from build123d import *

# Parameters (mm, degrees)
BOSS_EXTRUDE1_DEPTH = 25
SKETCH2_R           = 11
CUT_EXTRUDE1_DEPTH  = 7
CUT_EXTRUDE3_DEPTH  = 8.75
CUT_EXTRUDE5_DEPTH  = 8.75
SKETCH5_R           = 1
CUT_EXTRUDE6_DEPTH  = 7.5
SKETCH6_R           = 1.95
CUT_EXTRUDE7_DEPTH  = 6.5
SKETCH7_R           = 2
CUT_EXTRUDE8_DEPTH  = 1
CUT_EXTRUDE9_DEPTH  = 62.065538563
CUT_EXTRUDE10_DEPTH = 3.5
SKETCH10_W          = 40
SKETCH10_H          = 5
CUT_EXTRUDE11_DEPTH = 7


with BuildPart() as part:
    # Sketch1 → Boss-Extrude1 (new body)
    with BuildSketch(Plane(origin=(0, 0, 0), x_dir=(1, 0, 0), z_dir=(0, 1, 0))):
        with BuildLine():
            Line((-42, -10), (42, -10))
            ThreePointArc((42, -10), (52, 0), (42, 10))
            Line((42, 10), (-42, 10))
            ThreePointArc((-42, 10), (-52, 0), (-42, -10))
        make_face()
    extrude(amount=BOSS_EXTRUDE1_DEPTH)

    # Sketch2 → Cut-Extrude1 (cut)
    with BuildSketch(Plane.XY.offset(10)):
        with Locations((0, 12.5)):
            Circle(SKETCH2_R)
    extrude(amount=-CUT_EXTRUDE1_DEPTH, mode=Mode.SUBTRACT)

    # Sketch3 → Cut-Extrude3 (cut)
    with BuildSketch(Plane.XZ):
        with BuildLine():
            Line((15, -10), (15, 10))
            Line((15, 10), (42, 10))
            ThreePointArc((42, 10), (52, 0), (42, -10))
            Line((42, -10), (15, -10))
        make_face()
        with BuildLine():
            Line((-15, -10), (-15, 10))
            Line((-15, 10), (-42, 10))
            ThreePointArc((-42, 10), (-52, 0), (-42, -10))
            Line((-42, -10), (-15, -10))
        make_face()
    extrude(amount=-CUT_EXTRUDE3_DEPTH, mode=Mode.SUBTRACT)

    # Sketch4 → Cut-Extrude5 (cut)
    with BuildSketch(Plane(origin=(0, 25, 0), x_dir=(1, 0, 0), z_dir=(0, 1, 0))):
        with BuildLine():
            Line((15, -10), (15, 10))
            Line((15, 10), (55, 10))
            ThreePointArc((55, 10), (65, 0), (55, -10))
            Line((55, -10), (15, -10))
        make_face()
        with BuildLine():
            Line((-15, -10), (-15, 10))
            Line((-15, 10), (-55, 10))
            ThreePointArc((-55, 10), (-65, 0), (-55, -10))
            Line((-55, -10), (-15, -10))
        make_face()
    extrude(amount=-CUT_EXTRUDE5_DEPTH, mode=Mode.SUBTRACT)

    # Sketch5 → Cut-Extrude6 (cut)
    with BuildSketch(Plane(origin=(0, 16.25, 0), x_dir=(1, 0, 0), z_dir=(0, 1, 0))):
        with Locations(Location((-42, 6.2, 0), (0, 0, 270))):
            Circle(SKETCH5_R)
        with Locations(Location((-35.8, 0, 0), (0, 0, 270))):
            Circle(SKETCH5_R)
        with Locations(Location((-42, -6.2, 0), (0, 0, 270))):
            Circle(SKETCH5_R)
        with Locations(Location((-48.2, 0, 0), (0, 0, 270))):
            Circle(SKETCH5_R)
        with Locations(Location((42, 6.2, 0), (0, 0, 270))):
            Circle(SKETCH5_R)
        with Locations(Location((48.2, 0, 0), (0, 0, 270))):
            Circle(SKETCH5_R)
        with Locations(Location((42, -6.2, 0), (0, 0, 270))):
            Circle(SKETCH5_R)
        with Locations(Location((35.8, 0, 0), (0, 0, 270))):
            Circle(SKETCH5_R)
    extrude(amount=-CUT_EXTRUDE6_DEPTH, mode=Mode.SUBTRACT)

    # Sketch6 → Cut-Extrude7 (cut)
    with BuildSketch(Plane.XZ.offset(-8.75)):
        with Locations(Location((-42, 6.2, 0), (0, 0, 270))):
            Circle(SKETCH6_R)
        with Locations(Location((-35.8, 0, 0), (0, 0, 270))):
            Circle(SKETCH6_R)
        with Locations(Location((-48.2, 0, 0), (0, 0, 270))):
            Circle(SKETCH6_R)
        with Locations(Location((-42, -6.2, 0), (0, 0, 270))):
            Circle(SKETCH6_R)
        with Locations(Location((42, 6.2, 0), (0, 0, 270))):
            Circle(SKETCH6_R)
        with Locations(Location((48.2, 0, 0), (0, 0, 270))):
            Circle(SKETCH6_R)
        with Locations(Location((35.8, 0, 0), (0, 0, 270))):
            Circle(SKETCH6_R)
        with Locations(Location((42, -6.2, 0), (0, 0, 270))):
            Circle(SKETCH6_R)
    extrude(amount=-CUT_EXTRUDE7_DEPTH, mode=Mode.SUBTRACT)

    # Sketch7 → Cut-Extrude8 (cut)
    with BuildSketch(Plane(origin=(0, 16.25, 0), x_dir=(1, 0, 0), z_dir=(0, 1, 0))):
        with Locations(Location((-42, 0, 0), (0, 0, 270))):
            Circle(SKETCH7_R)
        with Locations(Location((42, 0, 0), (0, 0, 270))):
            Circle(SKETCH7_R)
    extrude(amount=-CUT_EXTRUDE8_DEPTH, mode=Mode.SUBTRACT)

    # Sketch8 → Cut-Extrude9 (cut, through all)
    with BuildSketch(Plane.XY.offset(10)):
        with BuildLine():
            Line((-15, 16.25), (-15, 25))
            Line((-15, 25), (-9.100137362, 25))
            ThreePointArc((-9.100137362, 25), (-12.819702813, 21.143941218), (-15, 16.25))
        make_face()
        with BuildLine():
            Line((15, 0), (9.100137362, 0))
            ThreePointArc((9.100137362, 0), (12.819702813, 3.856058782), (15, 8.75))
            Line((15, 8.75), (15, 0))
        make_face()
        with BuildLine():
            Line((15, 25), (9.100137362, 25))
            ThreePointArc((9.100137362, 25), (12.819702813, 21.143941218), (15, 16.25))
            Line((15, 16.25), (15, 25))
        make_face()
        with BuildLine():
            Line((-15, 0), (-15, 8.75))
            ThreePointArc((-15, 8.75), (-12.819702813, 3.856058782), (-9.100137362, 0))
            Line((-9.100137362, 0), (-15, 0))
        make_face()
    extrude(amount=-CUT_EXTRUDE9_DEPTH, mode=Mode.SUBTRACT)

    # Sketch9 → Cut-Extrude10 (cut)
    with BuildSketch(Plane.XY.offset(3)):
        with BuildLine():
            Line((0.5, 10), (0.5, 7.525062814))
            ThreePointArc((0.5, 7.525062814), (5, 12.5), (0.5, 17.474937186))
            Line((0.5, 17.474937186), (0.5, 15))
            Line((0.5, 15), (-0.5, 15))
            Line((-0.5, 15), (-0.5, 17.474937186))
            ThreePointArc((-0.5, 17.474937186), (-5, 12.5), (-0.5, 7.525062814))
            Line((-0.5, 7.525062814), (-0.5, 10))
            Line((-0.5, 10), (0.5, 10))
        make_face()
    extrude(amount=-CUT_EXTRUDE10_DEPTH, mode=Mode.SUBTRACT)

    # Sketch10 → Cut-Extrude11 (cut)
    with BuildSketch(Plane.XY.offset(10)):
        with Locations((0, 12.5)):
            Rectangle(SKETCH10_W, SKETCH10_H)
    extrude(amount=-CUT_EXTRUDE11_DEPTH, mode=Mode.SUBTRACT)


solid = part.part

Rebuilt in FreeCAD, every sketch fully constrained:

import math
import FreeCAD as App
import Part
import Sketcher
from FreeCAD import Vector
Q = App.Units.Quantity


def add_polygon(sketch, points):
    """Adds a closed chain of lines whose ends are joined by coincident constraints."""
    first, n = sketch.GeometryCount, len(points)
    for a, b in zip(points, points[1:] + points[:1]):
        sketch.addGeometry(Part.LineSegment(App.Vector(*a, 0), App.Vector(*b, 0)), False)
    for i in range(n):
        sketch.addConstraint(Sketcher.Constraint("Coincident", first + i, 2, first + (i + 1) % n, 1))

doc = App.newDocument("Part")
body = doc.addObject("PartDesign::Body", "Body")

# Sketch on XZ plane
sketch1 = body.newObject("Sketcher::SketchObject", "Sketch")
sketch1.AttachmentSupport = (doc.getObject("XZ_Plane"), [""])
sketch1.MapMode = "FlatFace"
sketch1.addGeometry(Part.LineSegment(Vector(-42, 10, 0), Vector(42, 10, 0)), False)
sketch1.addGeometry(Part.ArcOfCircle(Part.Circle(Vector(42, 0, 0), Vector(0, 0, 1), 10), math.radians(-90), math.radians(90)), False)
sketch1.addGeometry(Part.LineSegment(Vector(42, -10, 0), Vector(-42, -10, 0)), False)
sketch1.addGeometry(Part.ArcOfCircle(Part.Circle(Vector(-42, 0, 0), Vector(0, 0, 1), 10), math.radians(90), math.radians(270)), False)
sketch1.addConstraint(Sketcher.Constraint("Tangent", 0, 2, 1, 2))
sketch1.addConstraint(Sketcher.Constraint("Tangent", 1, 1, 2, 1))
sketch1.addConstraint(Sketcher.Constraint("Tangent", 2, 2, 3, 2))
sketch1.addConstraint(Sketcher.Constraint("Tangent", 3, 1, 0, 1))
sketch1.addConstraint(Sketcher.Constraint("Horizontal", 0))
sketch1.addConstraint(Sketcher.Constraint("Horizontal", 2))
sketch1.addConstraint(Sketcher.Constraint("Symmetric", 1, 3, 3, 3, -1, 1))
sketch1.addConstraint(Sketcher.Constraint("Radius", 1, Q("10 mm")))
sketch1.addConstraint(Sketcher.Constraint("DistanceX", 0, 1, 0, 2, Q("84 mm")))
pad1 = body.newObject("PartDesign::Pad", "Pad")
pad1.Profile = sketch1
pad1.Length = 25
pad1.Reversed = True

# Sketch on XY plane
sketch2 = body.newObject("Sketcher::SketchObject", "Sketch001")
sketch2.AttachmentSupport = (doc.getObject("XY_Plane"), [""])
sketch2.MapMode = "FlatFace"
sketch2.AttachmentOffset = App.Placement(Vector(0, 0, 10), App.Rotation())
sketch2.addGeometry(Part.Circle(Vector(0, 12, 0), Vector(0, 0, 1), 11), False)
sketch2.addConstraint(Sketcher.Constraint("PointOnObject", 0, 3, -2))
sketch2.addConstraint(Sketcher.Constraint("Diameter", 0, Q("22 mm")))
sketch2.addConstraint(Sketcher.Constraint("DistanceY", -1, 1, 0, 3, Q("12.5 mm")))
pocket1 = body.newObject("PartDesign::Pocket", "Pocket")
pocket1.Profile = sketch2
pocket1.Length = 7

# Sketch on XZ plane
sketch3 = body.newObject("Sketcher::SketchObject", "Sketch002")
sketch3.AttachmentSupport = (doc.getObject("XZ_Plane"), [""])
sketch3.MapMode = "FlatFace"
sketch3.addGeometry(Part.LineSegment(Vector(15, 10, 0), Vector(15, -10, 0)), False)
sketch3.addGeometry(Part.LineSegment(Vector(15, -10, 0), Vector(42, -10, 0)), False)
sketch3.addGeometry(Part.ArcOfCircle(Part.Circle(Vector(42, 0, 0), Vector(0, 0, 1), 10), math.radians(-90), math.radians(90)), False)
sketch3.addGeometry(Part.LineSegment(Vector(42, 10, 0), Vector(15, 10, 0)), False)
sketch3.addGeometry(Part.LineSegment(Vector(-15, -10, 0), Vector(-15, 10, 0)), False)
sketch3.addGeometry(Part.LineSegment(Vector(-15, 10, 0), Vector(-42, 10, 0)), False)
sketch3.addGeometry(Part.ArcOfCircle(Part.Circle(Vector(-42, 0, 0), Vector(0, 0, 1), 10), math.radians(90), math.radians(270)), False)
sketch3.addGeometry(Part.LineSegment(Vector(-42, -10, 0), Vector(-15, -10, 0)), False)
sketch3.addConstraint(Sketcher.Constraint("Coincident", 0, 2, 1, 1))
sketch3.addConstraint(Sketcher.Constraint("Tangent", 1, 2, 2, 1))
sketch3.addConstraint(Sketcher.Constraint("Tangent", 2, 2, 3, 1))
sketch3.addConstraint(Sketcher.Constraint("Coincident", 3, 2, 0, 1))
sketch3.addConstraint(Sketcher.Constraint("Coincident", 4, 2, 5, 1))
sketch3.addConstraint(Sketcher.Constraint("Tangent", 5, 2, 6, 1))
sketch3.addConstraint(Sketcher.Constraint("Tangent", 6, 2, 7, 1))
sketch3.addConstraint(Sketcher.Constraint("Coincident", 7, 2, 4, 1))
sketch3.addConstraint(Sketcher.Constraint("Vertical", 0))
sketch3.addConstraint(Sketcher.Constraint("Horizontal", 1))
sketch3.addConstraint(Sketcher.Constraint("Horizontal", 3))
sketch3.addConstraint(Sketcher.Constraint("Vertical", 4))
sketch3.addConstraint(Sketcher.Constraint("Horizontal", 5))
sketch3.addConstraint(Sketcher.Constraint("Horizontal", 7))
sketch3.addConstraint(Sketcher.Constraint("Equal", 2, 6))
sketch3.addConstraint(Sketcher.Constraint("Symmetric", 2, 3, 6, 3, -1, 1))
sketch3.addConstraint(Sketcher.Constraint("Symmetric", 3, 2, 4, 2, -2))
sketch3.addConstraint(Sketcher.Constraint("Radius", 2, Q("10 mm")))
sketch3.addConstraint(Sketcher.Constraint("DistanceX", 1, 1, 1, 2, Q("27 mm")))
sketch3.addConstraint(Sketcher.Constraint("DistanceX", -1, 1, 2, 3, Q("42 mm")))
pocket2 = body.newObject("PartDesign::Pocket", "Pocket001")
pocket2.Profile = sketch3
pocket2.Length = 8.75

# Sketch on XZ plane
sketch4 = body.newObject("Sketcher::SketchObject", "Sketch003")
sketch4.AttachmentSupport = (doc.getObject("XZ_Plane"), [""])
sketch4.MapMode = "FlatFace"
sketch4.AttachmentOffset = App.Placement(Vector(0, 0, -25), App.Rotation())
sketch4.addGeometry(Part.LineSegment(Vector(15, -10, 0), Vector(15, 10, 0)), False)
sketch4.addGeometry(Part.LineSegment(Vector(15, 10, 0), Vector(55, 10, 0)), False)
sketch4.addGeometry(Part.ArcOfCircle(Part.Circle(Vector(55, 0, 0), Vector(0, 0, 1), 10), math.radians(-90), math.radians(90)), False)
sketch4.addGeometry(Part.LineSegment(Vector(55, -10, 0), Vector(15, -10, 0)), False)
sketch4.addGeometry(Part.LineSegment(Vector(-15, 10, 0), Vector(-15, -10, 0)), False)
sketch4.addGeometry(Part.LineSegment(Vector(-15, -10, 0), Vector(-55, -10, 0)), False)
sketch4.addGeometry(Part.ArcOfCircle(Part.Circle(Vector(-55, 0, 0), Vector(0, 0, 1), 10), math.radians(90), math.radians(270)), False)
sketch4.addGeometry(Part.LineSegment(Vector(-55, 10, 0), Vector(-15, 10, 0)), False)
sketch4.addConstraint(Sketcher.Constraint("Coincident", 0, 2, 1, 1))
sketch4.addConstraint(Sketcher.Constraint("Tangent", 1, 2, 2, 2))
sketch4.addConstraint(Sketcher.Constraint("Tangent", 2, 1, 3, 1))
sketch4.addConstraint(Sketcher.Constraint("Coincident", 3, 2, 0, 1))
sketch4.addConstraint(Sketcher.Constraint("Coincident", 4, 2, 5, 1))
sketch4.addConstraint(Sketcher.Constraint("Tangent", 5, 2, 6, 2))
sketch4.addConstraint(Sketcher.Constraint("Tangent", 6, 1, 7, 1))
sketch4.addConstraint(Sketcher.Constraint("Coincident", 7, 2, 4, 1))
sketch4.addConstraint(Sketcher.Constraint("Vertical", 0))
sketch4.addConstraint(Sketcher.Constraint("Horizontal", 1))
sketch4.addConstraint(Sketcher.Constraint("Horizontal", 3))
sketch4.addConstraint(Sketcher.Constraint("Vertical", 4))
sketch4.addConstraint(Sketcher.Constraint("Horizontal", 5))
sketch4.addConstraint(Sketcher.Constraint("Horizontal", 7))
sketch4.addConstraint(Sketcher.Constraint("Equal", 2, 6))
sketch4.addConstraint(Sketcher.Constraint("Symmetric", 2, 3, 6, 3, -1, 1))
sketch4.addConstraint(Sketcher.Constraint("Symmetric", 3, 2, 4, 2, -2))
sketch4.addConstraint(Sketcher.Constraint("Radius", 2, Q("10 mm")))
sketch4.addConstraint(Sketcher.Constraint("DistanceX", 1, 1, 1, 2, Q("40 mm")))
sketch4.addConstraint(Sketcher.Constraint("DistanceX", -1, 1, 2, 3, Q("55 mm")))
pocket3 = body.newObject("PartDesign::Pocket", "Pocket002")
pocket3.Profile = sketch4
pocket3.Length = 8.75
pocket3.Reversed = True

# Sketch on XZ plane
sketch5 = body.newObject("Sketcher::SketchObject", "Sketch004")
sketch5.AttachmentSupport = (doc.getObject("XZ_Plane"), [""])
sketch5.MapMode = "FlatFace"
sketch5.AttachmentOffset = App.Placement(Vector(0, 0, -16.25), App.Rotation())
sketch5.addGeometry(Part.Circle(Vector(-42, -6.2, 0), Vector(0, 0, 1), 1), False)
sketch5.addGeometry(Part.Circle(Vector(-35.8, 0, 0), Vector(0, 0, 1), 1), False)
sketch5.addGeometry(Part.Circle(Vector(-42, 6.2, 0), Vector(0, 0, 1), 1), False)
sketch5.addGeometry(Part.Circle(Vector(-48.2, 0, 0), Vector(0, 0, 1), 1), False)
sketch5.addGeometry(Part.Circle(Vector(42, -6.2, 0), Vector(0, 0, 1), 1), False)
sketch5.addGeometry(Part.Circle(Vector(48.2, 0, 0), Vector(0, 0, 1), 1), False)
sketch5.addGeometry(Part.Circle(Vector(42, 6.2, 0), Vector(0, 0, 1), 1), False)
sketch5.addGeometry(Part.Circle(Vector(35.8, 0, 0), Vector(0, 0, 1), 1), False)
sketch5.addConstraint(Sketcher.Constraint("Equal", 0, 1))
sketch5.addConstraint(Sketcher.Constraint("Equal", 1, 2))
sketch5.addConstraint(Sketcher.Constraint("Equal", 2, 3))
sketch5.addConstraint(Sketcher.Constraint("Equal", 3, 4))
sketch5.addConstraint(Sketcher.Constraint("Equal", 4, 5))
sketch5.addConstraint(Sketcher.Constraint("Equal", 5, 6))
sketch5.addConstraint(Sketcher.Constraint("Equal", 6, 7))
sketch5.addConstraint(Sketcher.Constraint("Symmetric", 2, 3, 4, 3, -1, 1))
sketch5.addConstraint(Sketcher.Constraint("Symmetric", 3, 3, 5, 3, -1, 1))
sketch5.addConstraint(Sketcher.Constraint("Symmetric", 0, 3, 6, 3, -1, 1))
sketch5.addConstraint(Sketcher.Constraint("Symmetric", 1, 3, 7, 3, -1, 1))
sketch5.addConstraint(Sketcher.Constraint("Symmetric", 0, 3, 4, 3, -2))
sketch5.addConstraint(Sketcher.Constraint("PointOnObject", 1, 3, -1))
sketch5.addConstraint(Sketcher.Constraint("PointOnObject", 3, 3, -1))
sketch5.addConstraint(Sketcher.Constraint("Diameter", 0, Q("2 mm")))
sketch5.addConstraint(Sketcher.Constraint("DistanceX", 0, 3, -1, 1, Q("42 mm")))
sketch5.addConstraint(Sketcher.Constraint("DistanceX", 1, 3, 5, 3, Q("84 mm")))
sketch5.addConstraint(Sketcher.Constraint("DistanceY", 0, 3, -1, 1, Q("6.2 mm")))
sketch5.addConstraint(Sketcher.Constraint("DistanceX", 1, 3, -1, 1, Q("35.8 mm")))
pocket4 = body.newObject("PartDesign::Pocket", "Pocket003")
pocket4.Profile = sketch5
pocket4.Length = 7.5
pocket4.Reversed = True

# Sketch on XZ plane
sketch6 = body.newObject("Sketcher::SketchObject", "Sketch005")
sketch6.AttachmentSupport = (doc.getObject("XZ_Plane"), [""])
sketch6.MapMode = "FlatFace"
sketch6.AttachmentOffset = App.Placement(Vector(0, 0, -8.75), App.Rotation())
sketch6.addGeometry(Part.Circle(Vector(-42, 6.2, 0), Vector(0, 0, 1), 1.9), False)
sketch6.addGeometry(Part.Circle(Vector(-35.8, 0, 0), Vector(0, 0, 1), 1.9), False)
sketch6.addGeometry(Part.Circle(Vector(-48.2, 0, 0), Vector(0, 0, 1), 1.9), False)
sketch6.addGeometry(Part.Circle(Vector(-42, -6.2, 0), Vector(0, 0, 1), 1.9), False)
sketch6.addGeometry(Part.Circle(Vector(42, 6.2, 0), Vector(0, 0, 1), 1.9), False)
sketch6.addGeometry(Part.Circle(Vector(48.2, 0, 0), Vector(0, 0, 1), 1.9), False)
sketch6.addGeometry(Part.Circle(Vector(35.8, 0, 0), Vector(0, 0, 1), 1.9), False)
sketch6.addGeometry(Part.Circle(Vector(42, -6.2, 0), Vector(0, 0, 1), 1.9), False)
sketch6.addConstraint(Sketcher.Constraint("Equal", 0, 1))
sketch6.addConstraint(Sketcher.Constraint("Equal", 1, 2))
sketch6.addConstraint(Sketcher.Constraint("Equal", 2, 3))
sketch6.addConstraint(Sketcher.Constraint("Equal", 3, 4))
sketch6.addConstraint(Sketcher.Constraint("Equal", 4, 5))
sketch6.addConstraint(Sketcher.Constraint("Equal", 5, 6))
sketch6.addConstraint(Sketcher.Constraint("Equal", 6, 7))
sketch6.addConstraint(Sketcher.Constraint("Symmetric", 3, 3, 4, 3, -1, 1))
sketch6.addConstraint(Sketcher.Constraint("Symmetric", 2, 3, 5, 3, -1, 1))
sketch6.addConstraint(Sketcher.Constraint("Symmetric", 1, 3, 6, 3, -1, 1))
sketch6.addConstraint(Sketcher.Constraint("Symmetric", 0, 3, 7, 3, -1, 1))
sketch6.addConstraint(Sketcher.Constraint("Symmetric", 0, 3, 4, 3, -2))
sketch6.addConstraint(Sketcher.Constraint("PointOnObject", 1, 3, -1))
sketch6.addConstraint(Sketcher.Constraint("PointOnObject", 2, 3, -1))
sketch6.addConstraint(Sketcher.Constraint("Diameter", 0, Q("3.9 mm")))
sketch6.addConstraint(Sketcher.Constraint("DistanceX", 0, 3, -1, 1, Q("42 mm")))
sketch6.addConstraint(Sketcher.Constraint("DistanceX", 1, 3, 5, 3, Q("84 mm")))
sketch6.addConstraint(Sketcher.Constraint("DistanceY", -1, 1, 0, 3, Q("6.2 mm")))
sketch6.addConstraint(Sketcher.Constraint("DistanceX", 1, 3, -1, 1, Q("35.8 mm")))
pocket5 = body.newObject("PartDesign::Pocket", "Pocket004")
pocket5.Profile = sketch6
pocket5.Length = 6.5

# Sketch on XZ plane
sketch7 = body.newObject("Sketcher::SketchObject", "Sketch006")
sketch7.AttachmentSupport = (doc.getObject("XZ_Plane"), [""])
sketch7.MapMode = "FlatFace"
sketch7.AttachmentOffset = App.Placement(Vector(0, 0, -16.25), App.Rotation())
sketch7.addGeometry(Part.Circle(Vector(-42, 0, 0), Vector(0, 0, 1), 2), False)
sketch7.addGeometry(Part.Circle(Vector(42, 0, 0), Vector(0, 0, 1), 2), False)
sketch7.addConstraint(Sketcher.Constraint("Equal", 0, 1))
sketch7.addConstraint(Sketcher.Constraint("Symmetric", 0, 3, 1, 3, -1, 1))
sketch7.addConstraint(Sketcher.Constraint("PointOnObject", 0, 3, -1))
sketch7.addConstraint(Sketcher.Constraint("Diameter", 0, Q("4 mm")))
sketch7.addConstraint(Sketcher.Constraint("DistanceX", 0, 3, -1, 1, Q("42 mm")))
pocket6 = body.newObject("PartDesign::Pocket", "Pocket005")
pocket6.Profile = sketch7
pocket6.Length = 1
pocket6.Reversed = True

# Sketch on XY plane
sketch8 = body.newObject("Sketcher::SketchObject", "Sketch007")
sketch8.AttachmentSupport = (doc.getObject("XY_Plane"), [""])
sketch8.MapMode = "FlatFace"
sketch8.AttachmentOffset = App.Placement(Vector(0, 0, 10), App.Rotation())
sketch8.addGeometry(Part.LineSegment(Vector(-15, 25, 0), Vector(-15, 16, 0)), False)
sketch8.addGeometry(Part.ArcOfCircle(Part.Circle(Vector(0, 12, 0), Vector(0, 0, 1), 15), math.radians(126), math.radians(166)), False)
sketch8.addGeometry(Part.LineSegment(Vector(-9, 25, 0), Vector(-15, 25, 0)), False)
sketch8.addGeometry(Part.LineSegment(Vector(9, 0, 0), Vector(15, 0, 0)), False)
sketch8.addGeometry(Part.LineSegment(Vector(15, 0, 0), Vector(15, 9, 0)), False)
sketch8.addGeometry(Part.ArcOfCircle(Part.Circle(Vector(0, 13, 0), Vector(0, 0, 1), 15), math.radians(-54), math.radians(-14)), False)
sketch8.addGeometry(Part.LineSegment(Vector(15, 25, 0), Vector(9, 25, 0)), False)
sketch8.addGeometry(Part.ArcOfCircle(Part.Circle(Vector(0, 12, 0), Vector(0, 0, 1), 15), math.radians(14), math.radians(54)), False)
sketch8.addGeometry(Part.LineSegment(Vector(15, 16, 0), Vector(15, 25, 0)), False)
sketch8.addGeometry(Part.LineSegment(Vector(-15, 9, 0), Vector(-15, 0, 0)), False)
sketch8.addGeometry(Part.LineSegment(Vector(-15, 0, 0), Vector(-9, 0, 0)), False)
sketch8.addGeometry(Part.ArcOfCircle(Part.Circle(Vector(0, 13, 0), Vector(0, 0, 1), 15), math.radians(-166), math.radians(-126)), False)
sketch8.addConstraint(Sketcher.Constraint("Coincident", 0, 2, 1, 2))
sketch8.addConstraint(Sketcher.Constraint("Coincident", 1, 1, 2, 1))
sketch8.addConstraint(Sketcher.Constraint("Coincident", 2, 2, 0, 1))
sketch8.addConstraint(Sketcher.Constraint("Coincident", 3, 2, 4, 1))
sketch8.addConstraint(Sketcher.Constraint("Coincident", 4, 2, 5, 2))
sketch8.addConstraint(Sketcher.Constraint("Coincident", 5, 1, 3, 1))
sketch8.addConstraint(Sketcher.Constraint("Coincident", 6, 2, 7, 2))
sketch8.addConstraint(Sketcher.Constraint("Coincident", 7, 1, 8, 1))
sketch8.addConstraint(Sketcher.Constraint("Coincident", 8, 2, 6, 1))
sketch8.addConstraint(Sketcher.Constraint("Coincident", 9, 2, 10, 1))
sketch8.addConstraint(Sketcher.Constraint("Coincident", 10, 2, 11, 2))
sketch8.addConstraint(Sketcher.Constraint("Coincident", 11, 1, 9, 1))
sketch8.addConstraint(Sketcher.Constraint("Vertical", 0))
sketch8.addConstraint(Sketcher.Constraint("Horizontal", 2))
sketch8.addConstraint(Sketcher.Constraint("Horizontal", 3))
sketch8.addConstraint(Sketcher.Constraint("Vertical", 4))
sketch8.addConstraint(Sketcher.Constraint("Horizontal", 6))
sketch8.addConstraint(Sketcher.Constraint("Vertical", 8))
sketch8.addConstraint(Sketcher.Constraint("Vertical", 9))
sketch8.addConstraint(Sketcher.Constraint("Horizontal", 10))
sketch8.addConstraint(Sketcher.Constraint("Coincident", 5, 3, 1, 3))
sketch8.addConstraint(Sketcher.Constraint("Coincident", 7, 3, 1, 3))
sketch8.addConstraint(Sketcher.Constraint("Coincident", 11, 3, 1, 3))
sketch8.addConstraint(Sketcher.Constraint("Equal", 1, 5))
sketch8.addConstraint(Sketcher.Constraint("Equal", 5, 7))
sketch8.addConstraint(Sketcher.Constraint("Equal", 7, 11))
sketch8.addConstraint(Sketcher.Constraint("Symmetric", 3, 2, 9, 2, -1, 1))
sketch8.addConstraint(Sketcher.Constraint("Symmetric", 1, 1, 6, 2, -2))
sketch8.addConstraint(Sketcher.Constraint("PointOnObject", 3, 2, -1))
sketch8.addConstraint(Sketcher.Constraint("Horizontal", 0, 2, 7, 1))
sketch8.addConstraint(Sketcher.Constraint("Vertical", 5, 1, 6, 2))
sketch8.addConstraint(Sketcher.Constraint("Vertical", 4, 2, 7, 1))
sketch8.addConstraint(Sketcher.Constraint("DistanceX", 0, 2, -1, 1, Q("15 mm")))
sketch8.addConstraint(Sketcher.Constraint("DistanceY", -1, 1, 1, 1, Q("25 mm")))
sketch8.addConstraint(Sketcher.Constraint("DistanceY", 0, 2, 0, 1, Q("8.75 mm")))
pocket7 = body.newObject("PartDesign::Pocket", "Pocket006")
pocket7.Profile = sketch8
pocket7.Type = "ThroughAll"

# Sketch on XY plane
sketch9 = body.newObject("Sketcher::SketchObject", "Sketch008")
sketch9.AttachmentSupport = (doc.getObject("XY_Plane"), [""])
sketch9.MapMode = "FlatFace"
sketch9.AttachmentOffset = App.Placement(Vector(0, 0, 3), App.Rotation())
sketch9.addGeometry(Part.LineSegment(Vector(0.5, 10, 0), Vector(0.5, 7.5, 0)), False)
sketch9.addGeometry(Part.ArcOfCircle(Part.Circle(Vector(0, 12.5, 0), Vector(0, 0, 1), 5), math.radians(-84), math.radians(84)), False)
sketch9.addGeometry(Part.LineSegment(Vector(0.5, 17.5, 0), Vector(0.5, 15, 0)), False)
sketch9.addGeometry(Part.LineSegment(Vector(0.5, 15, 0), Vector(-0.5, 15, 0)), False)
sketch9.addGeometry(Part.LineSegment(Vector(-0.5, 15, 0), Vector(-0.5, 17.5, 0)), False)
sketch9.addGeometry(Part.ArcOfCircle(Part.Circle(Vector(0, 12.5, 0), Vector(0, 0, 1), 5), math.radians(96), math.radians(264)), False)
sketch9.addGeometry(Part.LineSegment(Vector(-0.5, 7.5, 0), Vector(-0.5, 10, 0)), False)
sketch9.addGeometry(Part.LineSegment(Vector(-0.5, 10, 0), Vector(0.5, 10, 0)), False)
sketch9.addConstraint(Sketcher.Constraint("Coincident", 0, 2, 1, 1))
sketch9.addConstraint(Sketcher.Constraint("Coincident", 1, 2, 2, 1))
sketch9.addConstraint(Sketcher.Constraint("Coincident", 2, 2, 3, 1))
sketch9.addConstraint(Sketcher.Constraint("Coincident", 3, 2, 4, 1))
sketch9.addConstraint(Sketcher.Constraint("Coincident", 4, 2, 5, 1))
sketch9.addConstraint(Sketcher.Constraint("Coincident", 5, 2, 6, 1))
sketch9.addConstraint(Sketcher.Constraint("Coincident", 6, 2, 7, 1))
sketch9.addConstraint(Sketcher.Constraint("Coincident", 7, 2, 0, 1))
sketch9.addConstraint(Sketcher.Constraint("Vertical", 0))
sketch9.addConstraint(Sketcher.Constraint("Vertical", 2))
sketch9.addConstraint(Sketcher.Constraint("Horizontal", 3))
sketch9.addConstraint(Sketcher.Constraint("Vertical", 4))
sketch9.addConstraint(Sketcher.Constraint("Vertical", 6))
sketch9.addConstraint(Sketcher.Constraint("Horizontal", 7))
sketch9.addConstraint(Sketcher.Constraint("Coincident", 5, 3, 1, 3))
sketch9.addConstraint(Sketcher.Constraint("Equal", 1, 5))
sketch9.addConstraint(Sketcher.Constraint("Symmetric", 1, 2, 4, 2, -2))
sketch9.addConstraint(Sketcher.Constraint("Horizontal", 0, 2, 5, 2))
sketch9.addConstraint(Sketcher.Constraint("Vertical", 0, 2, 1, 2))
sketch9.addConstraint(Sketcher.Constraint("Equal", 0, 2))
sketch9.addConstraint(Sketcher.Constraint("Radius", 1, Q("5 mm")))
sketch9.addConstraint(Sketcher.Constraint("DistanceX", 3, 2, 3, 1, Q("1 mm")))
sketch9.addConstraint(Sketcher.Constraint("DistanceY", -1, 1, 2, 2, Q("15 mm")))
sketch9.addConstraint(Sketcher.Constraint("DistanceY", -1, 1, 6, 2, Q("10 mm")))
pocket8 = body.newObject("PartDesign::Pocket", "Pocket007")
pocket8.Profile = sketch9
pocket8.Length = 3.5

# Sketch on XY plane
sketch10 = body.newObject("Sketcher::SketchObject", "Sketch009")
sketch10.AttachmentSupport = (doc.getObject("XY_Plane"), [""])
sketch10.MapMode = "FlatFace"
sketch10.AttachmentOffset = App.Placement(Vector(0, 0, 10), App.Rotation())
add_polygon(sketch10, [(-20, 15), (-20, 10), (20, 10), (20, 15)])  # lines 0-3
sketch10.addConstraint(Sketcher.Constraint("Vertical", 0))
sketch10.addConstraint(Sketcher.Constraint("Horizontal", 1))
sketch10.addConstraint(Sketcher.Constraint("Vertical", 2))
sketch10.addConstraint(Sketcher.Constraint("Horizontal", 3))
sketch10.addConstraint(Sketcher.Constraint("DistanceX", 1, 1, 1, 2, Q("40 mm")))
sketch10.addConstraint(Sketcher.Constraint("DistanceY", 0, 2, 0, 1, Q("5 mm")))
sketch10.addConstraint(Sketcher.Constraint("DistanceX", 0, 2, -1, 1, Q("20 mm")))
sketch10.addConstraint(Sketcher.Constraint("DistanceY", -1, 1, 0, 2, Q("10 mm")))
pocket9 = body.newObject("PartDesign::Pocket", "Pocket008")
pocket9.Profile = sketch10
pocket9.Length = 7

doc.recompute()
